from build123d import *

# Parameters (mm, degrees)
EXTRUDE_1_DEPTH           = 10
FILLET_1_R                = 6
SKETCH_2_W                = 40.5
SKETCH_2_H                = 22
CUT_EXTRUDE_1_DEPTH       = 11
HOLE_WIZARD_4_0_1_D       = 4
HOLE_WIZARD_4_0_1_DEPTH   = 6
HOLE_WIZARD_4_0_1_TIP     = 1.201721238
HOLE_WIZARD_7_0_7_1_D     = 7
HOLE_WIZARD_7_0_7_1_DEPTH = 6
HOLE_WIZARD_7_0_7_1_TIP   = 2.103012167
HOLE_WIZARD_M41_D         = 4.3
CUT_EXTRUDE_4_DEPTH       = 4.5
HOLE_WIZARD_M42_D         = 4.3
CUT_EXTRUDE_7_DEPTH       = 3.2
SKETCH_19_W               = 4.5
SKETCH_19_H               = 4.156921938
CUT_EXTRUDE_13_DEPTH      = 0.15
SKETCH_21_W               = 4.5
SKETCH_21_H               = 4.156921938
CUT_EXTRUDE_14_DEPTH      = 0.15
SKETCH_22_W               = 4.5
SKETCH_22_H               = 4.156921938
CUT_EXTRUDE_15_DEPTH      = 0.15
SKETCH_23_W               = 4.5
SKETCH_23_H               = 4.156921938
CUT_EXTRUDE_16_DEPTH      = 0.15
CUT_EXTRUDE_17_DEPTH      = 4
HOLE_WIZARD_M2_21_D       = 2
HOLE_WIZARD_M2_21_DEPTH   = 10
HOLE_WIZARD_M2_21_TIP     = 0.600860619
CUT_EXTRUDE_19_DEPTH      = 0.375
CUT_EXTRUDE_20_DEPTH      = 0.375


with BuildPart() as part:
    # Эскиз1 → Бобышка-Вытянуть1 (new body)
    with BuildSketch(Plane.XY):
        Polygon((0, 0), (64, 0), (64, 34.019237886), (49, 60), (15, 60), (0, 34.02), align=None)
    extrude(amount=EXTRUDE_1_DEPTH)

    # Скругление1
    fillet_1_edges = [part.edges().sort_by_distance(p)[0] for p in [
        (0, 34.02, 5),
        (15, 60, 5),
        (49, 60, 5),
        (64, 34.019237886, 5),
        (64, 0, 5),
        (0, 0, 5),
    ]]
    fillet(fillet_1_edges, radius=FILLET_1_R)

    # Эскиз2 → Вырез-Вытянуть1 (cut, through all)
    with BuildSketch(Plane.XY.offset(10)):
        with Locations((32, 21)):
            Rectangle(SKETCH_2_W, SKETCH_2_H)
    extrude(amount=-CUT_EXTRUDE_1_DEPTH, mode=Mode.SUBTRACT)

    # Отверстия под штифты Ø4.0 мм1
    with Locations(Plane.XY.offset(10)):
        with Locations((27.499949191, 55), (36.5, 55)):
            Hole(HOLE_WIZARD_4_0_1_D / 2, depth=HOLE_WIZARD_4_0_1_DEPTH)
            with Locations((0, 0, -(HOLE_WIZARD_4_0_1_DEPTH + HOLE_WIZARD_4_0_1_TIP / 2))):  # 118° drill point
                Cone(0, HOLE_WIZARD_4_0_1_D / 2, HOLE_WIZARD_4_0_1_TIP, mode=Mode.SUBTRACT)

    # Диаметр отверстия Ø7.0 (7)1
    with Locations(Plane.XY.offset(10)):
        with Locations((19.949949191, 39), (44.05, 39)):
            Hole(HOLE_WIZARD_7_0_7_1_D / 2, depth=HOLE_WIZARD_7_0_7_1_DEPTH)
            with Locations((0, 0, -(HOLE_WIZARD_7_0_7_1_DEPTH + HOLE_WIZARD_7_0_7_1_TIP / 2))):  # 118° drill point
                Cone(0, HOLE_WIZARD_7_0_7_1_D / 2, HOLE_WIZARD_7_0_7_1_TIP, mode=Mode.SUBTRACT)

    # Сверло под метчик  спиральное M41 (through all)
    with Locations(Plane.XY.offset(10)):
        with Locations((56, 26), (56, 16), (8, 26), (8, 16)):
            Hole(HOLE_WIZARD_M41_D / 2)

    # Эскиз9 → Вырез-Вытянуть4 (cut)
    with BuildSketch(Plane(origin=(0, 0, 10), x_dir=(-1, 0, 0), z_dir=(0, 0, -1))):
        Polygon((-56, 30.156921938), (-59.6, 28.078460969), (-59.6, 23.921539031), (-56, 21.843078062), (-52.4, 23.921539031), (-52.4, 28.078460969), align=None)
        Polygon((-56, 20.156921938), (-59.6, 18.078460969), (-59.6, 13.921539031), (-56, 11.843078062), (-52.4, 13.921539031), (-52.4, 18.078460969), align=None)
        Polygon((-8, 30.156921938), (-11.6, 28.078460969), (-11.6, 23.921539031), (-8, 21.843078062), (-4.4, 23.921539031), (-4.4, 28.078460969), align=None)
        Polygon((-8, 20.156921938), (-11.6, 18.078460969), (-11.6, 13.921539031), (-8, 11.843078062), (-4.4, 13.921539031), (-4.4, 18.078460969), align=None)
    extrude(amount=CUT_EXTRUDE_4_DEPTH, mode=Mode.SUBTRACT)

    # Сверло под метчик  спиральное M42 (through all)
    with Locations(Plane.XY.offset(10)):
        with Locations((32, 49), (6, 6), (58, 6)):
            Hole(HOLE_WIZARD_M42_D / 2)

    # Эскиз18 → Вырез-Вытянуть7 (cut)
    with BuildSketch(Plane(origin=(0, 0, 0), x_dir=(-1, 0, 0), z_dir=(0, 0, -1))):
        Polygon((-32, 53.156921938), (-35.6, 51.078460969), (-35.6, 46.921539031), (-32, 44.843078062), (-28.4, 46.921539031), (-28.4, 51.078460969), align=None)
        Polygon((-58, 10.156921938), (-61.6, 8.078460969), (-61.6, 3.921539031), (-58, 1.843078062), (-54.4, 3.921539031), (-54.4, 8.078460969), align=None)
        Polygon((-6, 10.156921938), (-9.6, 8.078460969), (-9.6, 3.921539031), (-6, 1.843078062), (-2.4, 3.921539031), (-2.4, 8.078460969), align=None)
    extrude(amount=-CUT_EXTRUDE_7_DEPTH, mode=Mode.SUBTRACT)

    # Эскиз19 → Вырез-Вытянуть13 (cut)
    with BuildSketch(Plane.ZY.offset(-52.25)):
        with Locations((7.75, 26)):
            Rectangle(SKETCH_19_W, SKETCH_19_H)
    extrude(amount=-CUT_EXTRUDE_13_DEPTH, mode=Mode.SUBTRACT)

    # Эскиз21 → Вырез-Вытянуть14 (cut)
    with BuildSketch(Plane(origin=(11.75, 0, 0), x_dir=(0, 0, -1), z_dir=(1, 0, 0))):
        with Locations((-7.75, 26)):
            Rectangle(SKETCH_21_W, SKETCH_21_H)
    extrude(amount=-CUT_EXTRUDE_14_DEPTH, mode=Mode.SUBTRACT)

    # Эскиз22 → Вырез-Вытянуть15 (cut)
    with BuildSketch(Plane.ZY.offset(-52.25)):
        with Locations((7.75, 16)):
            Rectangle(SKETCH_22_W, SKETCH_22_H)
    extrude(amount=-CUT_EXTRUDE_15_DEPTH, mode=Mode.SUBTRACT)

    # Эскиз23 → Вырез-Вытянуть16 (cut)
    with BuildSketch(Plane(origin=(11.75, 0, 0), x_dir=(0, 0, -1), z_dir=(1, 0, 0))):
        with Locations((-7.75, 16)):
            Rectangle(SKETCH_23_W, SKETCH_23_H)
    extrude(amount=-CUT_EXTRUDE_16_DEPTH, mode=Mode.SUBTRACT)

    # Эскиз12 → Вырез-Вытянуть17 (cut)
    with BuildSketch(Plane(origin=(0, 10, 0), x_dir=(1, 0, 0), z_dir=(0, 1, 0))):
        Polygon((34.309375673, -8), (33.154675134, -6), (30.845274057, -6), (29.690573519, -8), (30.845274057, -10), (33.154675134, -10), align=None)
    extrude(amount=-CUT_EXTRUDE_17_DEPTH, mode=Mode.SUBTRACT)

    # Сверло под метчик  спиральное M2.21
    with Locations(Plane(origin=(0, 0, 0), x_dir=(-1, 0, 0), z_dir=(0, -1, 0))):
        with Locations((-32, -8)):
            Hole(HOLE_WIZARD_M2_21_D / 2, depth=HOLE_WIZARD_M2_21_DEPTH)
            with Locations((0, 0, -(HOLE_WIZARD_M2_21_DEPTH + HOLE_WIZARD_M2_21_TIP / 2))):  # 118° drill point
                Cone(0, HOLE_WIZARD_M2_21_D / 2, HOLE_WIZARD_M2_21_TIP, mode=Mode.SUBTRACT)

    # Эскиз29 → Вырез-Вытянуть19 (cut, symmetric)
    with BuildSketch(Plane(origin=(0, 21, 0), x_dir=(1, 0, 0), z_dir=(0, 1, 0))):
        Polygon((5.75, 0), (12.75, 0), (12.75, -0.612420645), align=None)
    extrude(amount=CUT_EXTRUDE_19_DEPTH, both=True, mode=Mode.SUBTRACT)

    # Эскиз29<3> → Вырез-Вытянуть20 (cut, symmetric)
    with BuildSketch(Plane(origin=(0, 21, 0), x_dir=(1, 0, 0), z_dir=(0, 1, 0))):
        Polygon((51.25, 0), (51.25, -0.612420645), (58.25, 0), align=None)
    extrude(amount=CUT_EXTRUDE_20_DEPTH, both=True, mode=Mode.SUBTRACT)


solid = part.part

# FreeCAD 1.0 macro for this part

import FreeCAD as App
import Part
import Sketcher
from FreeCAD import Vector
Q = App.Units.Quantity


def edges_at(feature, points):
    """Names of the edges that pass closest to the given points."""
    edges = feature.Shape.Edges
    near = lambda p: min(range(len(edges)), key=lambda i: edges[i].distToShape(Part.Vertex(*p))[0])
    return sorted({f"Edge{near(p) + 1}" for p in points})


def add_polygon(sketch, points):
    """Adds a closed chain of lines whose ends are joined by coincident constraints."""
    first, n = sketch.GeometryCount, len(points)
    for a, b in zip(points, points[1:] + points[:1]):
        sketch.addGeometry(Part.LineSegment(App.Vector(*a, 0), App.Vector(*b, 0)), False)
    for i in range(n):
        sketch.addConstraint(Sketcher.Constraint("Coincident", first + i, 2, first + (i + 1) % n, 1))

doc = App.newDocument("Part")
params = doc.addObject("Spreadsheet::Sheet", "Params")
for row, (alias, value) in enumerate([
    ("sketch1_width", "64 mm"),
    ("sketch1_width2", "34 mm"),
    ("sketch1_length", "30 mm"),
    ("sketch1_height", "34.02 mm"),
    ("pad1_length", "10 mm"),
    ("fillet_radius", "6 mm"),
    ("sketch2_height", "22 mm"),
    ("sketch2_width", "40.5 mm"),
    ("sketch3_diameter", "4 mm"),
    ("hole_diameter", "4 mm"),
    ("hole_depth", "6 mm"),
    ("sketch4_diameter", "7 mm"),
    ("hole2_diameter", "7 mm"),
    ("hole2_depth", "6 mm"),
    ("sketch5_diameter", "4.3 mm"),
    ("hole3_diameter", "4.3 mm"),
    ("pocket2_length", "4.5 mm"),
    ("sketch7_diameter", "4.3 mm"),
    ("hole4_diameter", "4.3 mm"),
    ("pocket3_length", "3.2 mm"),
    ("sketch9_height", "4.5 mm"),
    ("pocket4_length", "0.15 mm"),
    ("sketch10_height", "4.5 mm"),
    ("pocket5_length", "0.15 mm"),
    ("sketch11_height", "4.5 mm"),
    ("pocket6_length", "0.15 mm"),
    ("sketch12_height", "4.5 mm"),
    ("pocket7_length", "0.15 mm"),
    ("pocket8_length", "4 mm"),
    ("sketch14_diameter", "2 mm"),
    ("hole5_diameter", "2 mm"),
    ("hole5_depth", "10 mm"),
    ("sketch15_width", "7 mm"),
    ("pocket9_length", "0.75 mm"),
    ("sketch16_width", "7 mm"),
    ("pocket10_length", "0.75 mm"),
], start=1):
    params.set(f"A{row}", alias)
    params.set(f"B{row}", "=" + value)
    params.setAlias(f"B{row}", alias)

body = doc.addObject("PartDesign::Body", "Body")

# Sketch on XY plane
sketch1 = body.newObject("Sketcher::SketchObject", "Sketch")
sketch1.AttachmentSupport = (doc.getObject("XY_Plane"), [""])
sketch1.MapMode = "FlatFace"
add_polygon(sketch1, [(0, 0), (64, 0), (64, 34.019238), (49, 60), (15, 60), (0, 34.02)])  # lines 0-5
sketch1.addConstraint([
    Sketcher.Constraint("Horizontal", 0),
    Sketcher.Constraint("Vertical", 1),
    Sketcher.Constraint("Horizontal", 3),
    Sketcher.Constraint("Vertical", 5),
    Sketcher.Constraint("Coincident", 5, 2, -1, 1),
    Sketcher.Constraint("DistanceX", 0, 1, 0, 2, Q("64 mm")),
    Sketcher.Constraint("DistanceX", 3, 2, 3, 1, Q("34 mm")),
    Sketcher.Constraint("Angle", 2, Q("120 deg")),
    Sketcher.Constraint("Distance", 2, Q("30 mm")),
    Sketcher.Constraint("DistanceY", -1, 1, 2, 2, Q("60 mm")),
    Sketcher.Constraint("DistanceY", 5, 2, 5, 1, Q("34.02 mm")),
])
sketch1.setExpression("Constraints[11]", "Params.sketch1_width")
sketch1.setExpression("Constraints[12]", "Params.sketch1_width2")
sketch1.setExpression("Constraints[14]", "Params.sketch1_length")
sketch1.setExpression("Constraints[16]", "Params.sketch1_height")
pad1 = body.newObject("PartDesign::Pad", "Pad")
pad1.Profile = sketch1
pad1.setExpression("Length", "Params.pad1_length")
doc.recompute()

fillet = body.newObject("PartDesign::Fillet", "Fillet")
fillet.Base = (pad1, edges_at(pad1, [
    (0, 34.02, 5),
    (15, 60, 5),
    (49, 60, 5),
    (64, 34.019, 5),
    (64, 0, 5),
    (0, 0, 5),
]))
fillet.setExpression("Radius", "Params.fillet_radius")

# Sketch on XY plane
sketch2 = body.newObject("Sketcher::SketchObject", "Sketch001")
sketch2.AttachmentSupport = (doc.getObject("XY_Plane"), [""])
sketch2.MapMode = "FlatFace"
sketch2.AttachmentOffset = App.Placement(Vector(0, 0, 10), App.Rotation())
add_polygon(sketch2, [(11.75, 32), (11.75, 10), (52.25, 10), (52.25, 32)])  # lines 0-3
sketch2.addConstraint([
    Sketcher.Constraint("Vertical", 0),
    Sketcher.Constraint("Horizontal", 1),
    Sketcher.Constraint("Vertical", 2),
    Sketcher.Constraint("Horizontal", 3),
    Sketcher.Constraint("DistanceY", 0, 2, 0, 1, Q("22 mm")),
    Sketcher.Constraint("DistanceX", 1, 1, 1, 2, Q("40.5 mm")),
    Sketcher.Constraint("DistanceY", -1, 1, 0, 2, Q("10 mm")),
    Sketcher.Constraint("DistanceX", -1, 1, 0, 2, Q("11.75 mm")),
])
sketch2.setExpression("Constraints[8]", "Params.sketch2_height")
sketch2.setExpression("Constraints[9]", "Params.sketch2_width")
pocket1 = body.newObject("PartDesign::Pocket", "Pocket")
pocket1.Profile = sketch2
pocket1.Type = "ThroughAll"

# Sketch on XY plane
sketch3 = body.newObject("Sketcher::SketchObject", "Sketch002")
sketch3.AttachmentSupport = (doc.getObject("XY_Plane"), [""])
sketch3.MapMode = "FlatFace"
sketch3.AttachmentOffset = App.Placement(Vector(0, 0, 10), App.Rotation())
sketch3.addGeometry([
    Part.Circle(Vector(27.499949, 55, 0), Vector(0, 0, 1), 2),
    Part.Circle(Vector(36.5, 55, 0), Vector(0, 0, 1), 2),
], False)
sketch3.addConstraint([
    Sketcher.Constraint("Equal", 0, 1),
    Sketcher.Constraint("Horizontal", 0, 3, 1, 3),
    Sketcher.Constraint("Diameter", 0, Q("4 mm")),
    Sketcher.Constraint("DistanceY", -1, 1, 0, 3, Q("55 mm")),
    Sketcher.Constraint("DistanceX", -1, 1, 1, 3, Q("36.5 mm")),
    Sketcher.Constraint("DistanceX", -1, 1, 0, 3, Q("27.499949 mm")),
])
sketch3.setExpression("Constraints[2]", "Params.sketch3_diameter")
doc.recompute()
hole = body.newObject("PartDesign::Hole", "Hole")
hole.Profile = sketch3
hole.ThreadType = "None"
hole.setExpression("Diameter", "Params.hole_diameter")
hole.DepthType = "Dimension"
hole.setExpression("Depth", "Params.hole_depth")
hole.DrillPoint = "Angled"
hole.DrillPointAngle = 118

# Sketch on XY plane
sketch4 = body.newObject("Sketcher::SketchObject", "Sketch003")
sketch4.AttachmentSupport = (doc.getObject("XY_Plane"), [""])
sketch4.MapMode = "FlatFace"
sketch4.AttachmentOffset = App.Placement(Vector(0, 0, 10), App.Rotation())
sketch4.addGeometry([
    Part.Circle(Vector(19.949949, 39, 0), Vector(0, 0, 1), 3.5),
    Part.Circle(Vector(44.05, 39, 0), Vector(0, 0, 1), 3.5),
], False)
sketch4.addConstraint([
    Sketcher.Constraint("Equal", 0, 1),
    Sketcher.Constraint("Horizontal", 0, 3, 1, 3),
    Sketcher.Constraint("Diameter", 0, Q("7 mm")),
    Sketcher.Constraint("DistanceY", -1, 1, 0, 3, Q("39 mm")),
    Sketcher.Constraint("DistanceX", -1, 1, 1, 3, Q("44.05 mm")),
    Sketcher.Constraint("DistanceX", -1, 1, 0, 3, Q("19.949949 mm")),
])
sketch4.setExpression("Constraints[2]", "Params.sketch4_diameter")
doc.recompute()
hole2 = body.newObject("PartDesign::Hole", "Hole001")
hole2.Profile = sketch4
hole2.ThreadType = "None"
hole2.setExpression("Diameter", "Params.hole2_diameter")
hole2.DepthType = "Dimension"
hole2.setExpression("Depth", "Params.hole2_depth")
hole2.DrillPoint = "Angled"
hole2.DrillPointAngle = 118

# Sketch on XY plane
sketch5 = body.newObject("Sketcher::SketchObject", "Sketch004")
sketch5.AttachmentSupport = (doc.getObject("XY_Plane"), [""])
sketch5.MapMode = "FlatFace"
sketch5.AttachmentOffset = App.Placement(Vector(0, 0, 10), App.Rotation())
sketch5.addGeometry([
    Part.Circle(Vector(56, 26, 0), Vector(0, 0, 1), 2.15),
    Part.Circle(Vector(56, 16, 0), Vector(0, 0, 1), 2.15),
    Part.Circle(Vector(8, 26, 0), Vector(0, 0, 1), 2.15),
    Part.Circle(Vector(8, 16, 0), Vector(0, 0, 1), 2.15),
], False)
sketch5.addConstraint([
    Sketcher.Constraint("Equal", 0, 1),
    Sketcher.Constraint("Equal", 1, 2),
    Sketcher.Constraint("Equal", 2, 3),
    Sketcher.Constraint("Horizontal", 0, 3, 2, 3),
    Sketcher.Constraint("Horizontal", 1, 3, 3, 3),
    Sketcher.Constraint("Vertical", 0, 3, 1, 3),
    Sketcher.Constraint("Vertical", 2, 3, 3, 3),
    Sketcher.Constraint("Diameter", 0, Q("4.3 mm")),
    Sketcher.Constraint("DistanceX", -1, 1, 0, 3, Q("56 mm")),
    Sketcher.Constraint("DistanceY", -1, 1, 0, 3, Q("26 mm")),
    Sketcher.Constraint("DistanceY", -1, 1, 1, 3, Q("16 mm")),
    Sketcher.Constraint("DistanceX", -1, 1, 2, 3, Q("8 mm")),
])
sketch5.setExpression("Constraints[7]", "Params.sketch5_diameter")
doc.recompute()
hole3 = body.newObject("PartDesign::Hole", "Hole002")
hole3.Profile = sketch5
hole3.ThreadType = "None"
hole3.setExpression("Diameter", "Params.hole3_diameter")
hole3.DepthType = "ThroughAll"

# Sketch on XY plane
sketch6 = body.newObject("Sketcher::SketchObject", "Sketch005")
sketch6.AttachmentSupport = (doc.getObject("XY_Plane"), [""])
sketch6.MapMode = "FlatFace"
sketch6.AttachmentOffset = App.Placement(Vector(0, 0, 10), App.Rotation())
add_polygon(sketch6, [(56, 30.156922), (59.6, 28.078461), (59.6, 23.921539), (56, 21.843078), (52.4, 23.921539), (52.4, 28.078461)])  # lines 0-5
add_polygon(sketch6, [(56, 20.156922), (59.6, 18.078461), (59.6, 13.921539), (56, 11.843078), (52.4, 13.921539), (52.4, 18.078461)])  # lines 6-11
add_polygon(sketch6, [(8, 30.156922), (11.6, 28.078461), (11.6, 23.921539), (8, 21.843078), (4.4, 23.921539), (4.4, 28.078461)])  # lines 12-17
add_polygon(sketch6, [(8, 20.156922), (11.6, 18.078461), (11.6, 13.921539), (8, 11.843078), (4.4, 13.921539), (4.4, 18.078461)])  # lines 18-23
sketch6.addConstraint([
    Sketcher.Constraint("Vertical", 1),
    Sketcher.Constraint("Vertical", 4),
    Sketcher.Constraint("Vertical", 7),
    Sketcher.Constraint("Vertical", 10),
    Sketcher.Constraint("Vertical", 13),
    Sketcher.Constraint("Vertical", 16),
    Sketcher.Constraint("Vertical", 19),
    Sketcher.Constraint("Vertical", 22),
    Sketcher.Constraint("Parallel", 0, 3),
    Sketcher.Constraint("Parallel", 2, 5),
    Sketcher.Constraint("Parallel", 3, 6),
    Sketcher.Constraint("Parallel", 5, 8),
    Sketcher.Constraint("Parallel", 6, 9),
    Sketcher.Constraint("Parallel", 8, 11),
    Sketcher.Constraint("Parallel", 9, 12),
    Sketcher.Constraint("Parallel", 11, 14),
    Sketcher.Constraint("Parallel", 12, 15),
    Sketcher.Constraint("Parallel", 14, 17),
    Sketcher.Constraint("Parallel", 15, 18),
    Sketcher.Constraint("Parallel", 17, 20),
    Sketcher.Constraint("Parallel", 18, 21),
    Sketcher.Constraint("Parallel", 20, 23),
    Sketcher.Constraint("Horizontal", 1, 2, 3, 2),
    Sketcher.Constraint("Horizontal", 0, 2, 4, 2),
    Sketcher.Constraint("Horizontal", 7, 2, 9, 2),
    Sketcher.Constraint("Horizontal", 6, 2, 10, 2),
    Sketcher.Constraint("Horizontal", 4, 2, 12, 2),
    Sketcher.Constraint("Horizontal", 3, 2, 13, 2),
    Sketcher.Constraint("Horizontal", 2, 2, 14, 2),
    Sketcher.Constraint("Horizontal", 13, 2, 15, 2),
    Sketcher.Constraint("Horizontal", 12, 2, 16, 2),
    Sketcher.Constraint("Horizontal", 10, 2, 18, 2),
    Sketcher.Constraint("Horizontal", 9, 2, 19, 2),
    Sketcher.Constraint("Horizontal", 8, 2, 20, 2),
    Sketcher.Constraint("Horizontal", 19, 2, 21, 2),
    Sketcher.Constraint("Horizontal", 18, 2, 22, 2),
    Sketcher.Constraint("Vertical", 2, 2, 5, 2),
    Sketcher.Constraint("Vertical", 1, 2, 6, 2),
    Sketcher.Constraint("Vertical", 5, 2, 8, 2),
    Sketcher.Constraint("Vertical", 13, 2, 18, 2),
    Sketcher.Constraint("Equal", 4, 7),
    Sketcher.Constraint("Angle", 0, Q("-30 deg")),
    Sketcher.Constraint("DistanceX", -1, 1, 2, 2, Q("56 mm")),
    Sketcher.Constraint("DistanceX", -1, 1, 14, 2, Q("8 mm")),
    Sketcher.Constraint("DistanceY", 6, 2, 0, 2, Q("10 mm")),
    Sketcher.Constraint("DistanceX", -1, 1, 0, 2, Q("59.6 mm")),
    Sketcher.Constraint("DistanceY", 1, 2, 1, 1, Q("4.156922 mm")),
    Sketcher.Constraint("DistanceY", -1, 1, 0, 2, Q("28.078461 mm")),
])
pocket2 = body.newObject("PartDesign::Pocket", "Pocket001")
pocket2.Profile = sketch6
pocket2.setExpression("Length", "Params.pocket2_length")

# Sketch on XY plane
sketch7 = body.newObject("Sketcher::SketchObject", "Sketch006")
sketch7.AttachmentSupport = (doc.getObject("XY_Plane"), [""])
sketch7.MapMode = "FlatFace"
sketch7.AttachmentOffset = App.Placement(Vector(0, 0, 10), App.Rotation())
sketch7.addGeometry([
    Part.Circle(Vector(32, 49, 0), Vector(0, 0, 1), 2.15),
    Part.Circle(Vector(6, 6, 0), Vector(0, 0, 1), 2.15),
    Part.Circle(Vector(58, 6, 0), Vector(0, 0, 1), 2.15),
], False)
sketch7.addConstraint([
    Sketcher.Constraint("Equal", 0, 1),
    Sketcher.Constraint("Equal", 1, 2),
    Sketcher.Constraint("Horizontal", 1, 3, 2, 3),
    Sketcher.Constraint("Diameter", 0, Q("4.3 mm")),
    Sketcher.Constraint("DistanceX", -1, 1, 0, 3, Q("32 mm")),
    Sketcher.Constraint("DistanceY", -1, 1, 0, 3, Q("49 mm")),
    Sketcher.Constraint("DistanceX", -1, 1, 1, 3, Q("6 mm")),
    Sketcher.Constraint("DistanceY", -1, 1, 1, 3, Q("6 mm")),
    Sketcher.Constraint("DistanceX", -1, 1, 2, 3, Q("58 mm")),
])
sketch7.setExpression("Constraints[3]", "Params.sketch7_diameter")
doc.recompute()
hole4 = body.newObject("PartDesign::Hole", "Hole003")
hole4.Profile = sketch7
hole4.ThreadType = "None"
hole4.setExpression("Diameter", "Params.hole4_diameter")
hole4.DepthType = "ThroughAll"

# Sketch on XY plane
sketch8 = body.newObject("Sketcher::SketchObject", "Sketch007")
sketch8.AttachmentSupport = (doc.getObject("XY_Plane"), [""])
sketch8.MapMode = "FlatFace"
add_polygon(sketch8, [(32, 53.156922), (35.6, 51.078461), (35.6, 46.921539), (32, 44.843078), (28.4, 46.921539), (28.4, 51.078461)])  # lines 0-5
add_polygon(sketch8, [(58, 10.156922), (61.6, 8.078461), (61.6, 3.921539), (58, 1.843078), (54.4, 3.921539), (54.4, 8.078461)])  # lines 6-11
add_polygon(sketch8, [(6, 10.156922), (9.6, 8.078461), (9.6, 3.921539), (6, 1.843078), (2.4, 3.921539), (2.4, 8.078461)])  # lines 12-17
sketch8.addConstraint([
    Sketcher.Constraint("Vertical", 1),
    Sketcher.Constraint("Vertical", 4),
    Sketcher.Constraint("Vertical", 7),
    Sketcher.Constraint("Vertical", 10),
    Sketcher.Constraint("Vertical", 13),
    Sketcher.Constraint("Vertical", 16),
    Sketcher.Constraint("Parallel", 0, 3),
    Sketcher.Constraint("Parallel", 2, 5),
    Sketcher.Constraint("Parallel", 3, 6),
    Sketcher.Constraint("Parallel", 5, 8),
    Sketcher.Constraint("Parallel", 6, 9),
    Sketcher.Constraint("Parallel", 8, 11),
    Sketcher.Constraint("Parallel", 9, 12),
    Sketcher.Constraint("Parallel", 11, 14),
    Sketcher.Constraint("Parallel", 12, 15),
    Sketcher.Constraint("Parallel", 14, 17),
    Sketcher.Constraint("Horizontal", 1, 2, 3, 2),
    Sketcher.Constraint("Horizontal", 0, 2, 4, 2),
    Sketcher.Constraint("Horizontal", 7, 2, 9, 2),
    Sketcher.Constraint("Horizontal", 6, 2, 10, 2),
    Sketcher.Constraint("Horizontal", 10, 2, 12, 2),
    Sketcher.Constraint("Horizontal", 9, 2, 13, 2),
    Sketcher.Constraint("Horizontal", 8, 2, 14, 2),
    Sketcher.Constraint("Horizontal", 13, 2, 15, 2),
    Sketcher.Constraint("Horizontal", 12, 2, 16, 2),
    Sketcher.Constraint("Vertical", 2, 2, 5, 2),
    Sketcher.Constraint("Equal", 4, 7),
    Sketcher.Constraint("Equal", 5, 6),
    Sketcher.Constraint("Angle", 0, Q("-30 deg")),
    Sketcher.Constraint("DistanceX", -1, 1, 2, 2, Q("32 mm")),
    Sketcher.Constraint("DistanceX", -1, 1, 8, 2, Q("58 mm")),
    Sketcher.Constraint("DistanceX", -1, 1, 14, 2, Q("6 mm")),
    Sketcher.Constraint("DistanceY", 6, 2, 0, 2, Q("43 mm")),
    Sketcher.Constraint("DistanceX", -1, 1, 0, 2, Q("35.6 mm")),
    Sketcher.Constraint("DistanceY", 1, 2, 1, 1, Q("4.156922 mm")),
    Sketcher.Constraint("DistanceY", -1, 1, 0, 2, Q("51.078461 mm")),
])
pocket3 = body.newObject("PartDesign::Pocket", "Pocket002")
pocket3.Profile = sketch8
pocket3.setExpression("Length", "Params.pocket3_length")
pocket3.Reversed = True

# Sketch on YZ plane
sketch9 = body.newObject("Sketcher::SketchObject", "Sketch008")
sketch9.AttachmentSupport = (doc.getObject("YZ_Plane"), [""])
sketch9.MapMode = "FlatFace"
sketch9.AttachmentOffset = App.Placement(Vector(0, 0, 52.25), App.Rotation())
add_polygon(sketch9, [(28.078461, 5.5), (23.921539, 5.5), (23.921539, 10), (28.078461, 10)])  # lines 0-3
sketch9.addConstraint([
    Sketcher.Constraint("Horizontal", 0),
    Sketcher.Constraint("Vertical", 1),
    Sketcher.Constraint("Horizontal", 2),
    Sketcher.Constraint("Vertical", 3),
    Sketcher.Constraint("DistanceY", 1, 1, 1, 2, Q("4.5 mm")),
    Sketcher.Constraint("DistanceY", -1, 1, 1, 2, Q("10 mm")),
    Sketcher.Constraint("DistanceX", 0, 2, 0, 1, Q("4.156922 mm")),
    Sketcher.Constraint("DistanceX", -1, 1, 0, 2, Q("23.921539 mm")),
])
sketch9.setExpression("Constraints[8]", "Params.sketch9_height")
pocket4 = body.newObject("PartDesign::Pocket", "Pocket003")
pocket4.Profile = sketch9
pocket4.setExpression("Length", "Params.pocket4_length")
pocket4.Reversed = True

# Sketch on YZ plane
sketch10 = body.newObject("Sketcher::SketchObject", "Sketch009")
sketch10.AttachmentSupport = (doc.getObject("YZ_Plane"), [""])
sketch10.MapMode = "FlatFace"
sketch10.AttachmentOffset = App.Placement(Vector(0, 0, 11.75), App.Rotation())
add_polygon(sketch10, [(28.078461, 10), (23.921539, 10), (23.921539, 5.5), (28.078461, 5.5)])  # lines 0-3
sketch10.addConstraint([
    Sketcher.Constraint("Horizontal", 0),
    Sketcher.Constraint("Vertical", 1),
    Sketcher.Constraint("Horizontal", 2),
    Sketcher.Constraint("Vertical", 3),
    Sketcher.Constraint("DistanceY", 1, 2, 1, 1, Q("4.5 mm")),
    Sketcher.Constraint("DistanceY", -1, 1, 0, 2, Q("10 mm")),
    Sketcher.Constraint("DistanceX", 0, 2, 0, 1, Q("4.156922 mm")),
    Sketcher.Constraint("DistanceX", -1, 1, 0, 2, Q("23.921539 mm")),
])
sketch10.setExpression("Constraints[8]", "Params.sketch10_height")
pocket5 = body.newObject("PartDesign::Pocket", "Pocket004")
pocket5.Profile = sketch10
pocket5.setExpression("Length", "Params.pocket5_length")

# Sketch on YZ plane
sketch11 = body.newObject("Sketcher::SketchObject", "Sketch010")
sketch11.AttachmentSupport = (doc.getObject("YZ_Plane"), [""])
sketch11.MapMode = "FlatFace"
sketch11.AttachmentOffset = App.Placement(Vector(0, 0, 52.25), App.Rotation())
add_polygon(sketch11, [(18.078461, 5.5), (13.921539, 5.5), (13.921539, 10), (18.078461, 10)])  # lines 0-3
sketch11.addConstraint([
    Sketcher.Constraint("Horizontal", 0),
    Sketcher.Constraint("Vertical", 1),
    Sketcher.Constraint("Horizontal", 2),
    Sketcher.Constraint("Vertical", 3),
    Sketcher.Constraint("DistanceY", 1, 1, 1, 2, Q("4.5 mm")),
    Sketcher.Constraint("DistanceY", -1, 1, 1, 2, Q("10 mm")),
    Sketcher.Constraint("DistanceX", 0, 2, 0, 1, Q("4.156922 mm")),
    Sketcher.Constraint("DistanceX", -1, 1, 0, 2, Q("13.921539 mm")),
])
sketch11.setExpression("Constraints[8]", "Params.sketch11_height")
pocket6 = body.newObject("PartDesign::Pocket", "Pocket005")
pocket6.Profile = sketch11
pocket6.setExpression("Length", "Params.pocket6_length")
pocket6.Reversed = True

# Sketch on YZ plane
sketch12 = body.newObject("Sketcher::SketchObject", "Sketch011")
sketch12.AttachmentSupport = (doc.getObject("YZ_Plane"), [""])
sketch12.MapMode = "FlatFace"
sketch12.AttachmentOffset = App.Placement(Vector(0, 0, 11.75), App.Rotation())
add_polygon(sketch12, [(18.078461, 10), (13.921539, 10), (13.921539, 5.5), (18.078461, 5.5)])  # lines 0-3
sketch12.addConstraint([
    Sketcher.Constraint("Horizontal", 0),
    Sketcher.Constraint("Vertical", 1),
    Sketcher.Constraint("Horizontal", 2),
    Sketcher.Constraint("Vertical", 3),
    Sketcher.Constraint("DistanceY", 1, 2, 1, 1, Q("4.5 mm")),
    Sketcher.Constraint("DistanceY", -1, 1, 0, 2, Q("10 mm")),
    Sketcher.Constraint("DistanceX", 0, 2, 0, 1, Q("4.156922 mm")),
    Sketcher.Constraint("DistanceX", -1, 1, 0, 2, Q("13.921539 mm")),
])
sketch12.setExpression("Constraints[8]", "Params.sketch12_height")
pocket7 = body.newObject("PartDesign::Pocket", "Pocket006")
pocket7.Profile = sketch12
pocket7.setExpression("Length", "Params.pocket7_length")

# Sketch on XZ plane
sketch13 = body.newObject("Sketcher::SketchObject", "Sketch012")
sketch13.AttachmentSupport = (doc.getObject("XZ_Plane"), [""])
sketch13.MapMode = "FlatFace"
sketch13.AttachmentOffset = App.Placement(Vector(0, 0, -10), App.Rotation())
add_polygon(sketch13, [(34.309376, 8), (33.154675, 6), (30.845274, 6), (29.690574, 8), (30.845274, 10), (33.154675, 10)])  # lines 0-5
sketch13.addConstraint([
    Sketcher.Constraint("Horizontal", 1),
    Sketcher.Constraint("Horizontal", 4),
    Sketcher.Constraint("Parallel", 0, 3),
    Sketcher.Constraint("Parallel", 2, 5),
    Sketcher.Constraint("Horizontal", 2, 2, 5, 2),
    Sketcher.Constraint("Vertical", 1, 2, 3, 2),
    Sketcher.Constraint("Vertical", 0, 2, 4, 2),
    Sketcher.Constraint("Angle", 0, Q("-120 deg")),
    Sketcher.Constraint("DistanceY", -1, 1, 0, 2, Q("6 mm")),
    Sketcher.Constraint("DistanceY", -1, 1, 2, 2, Q("8 mm")),
    Sketcher.Constraint("DistanceX", 1, 2, 1, 1, Q("2.309401 mm")),
    Sketcher.Constraint("DistanceX", -1, 1, 0, 2, Q("33.154675 mm")),
])
pocket8 = body.newObject("PartDesign::Pocket", "Pocket007")
pocket8.Profile = sketch13
pocket8.setExpression("Length", "Params.pocket8_length")
pocket8.Reversed = True

# Sketch on XZ plane
sketch14 = body.newObject("Sketcher::SketchObject", "Sketch013")
sketch14.AttachmentSupport = (doc.getObject("XZ_Plane"), [""])
sketch14.MapMode = "FlatFace"
sketch14.addGeometry(Part.Circle(Vector(32, 8, 0), Vector(0, 0, 1), 1), False)
sketch14.addConstraint([
    Sketcher.Constraint("Diameter", 0, Q("2 mm")),
    Sketcher.Constraint("DistanceX", -1, 1, 0, 3, Q("32 mm")),
    Sketcher.Constraint("DistanceY", -1, 1, 0, 3, Q("8 mm")),
])
sketch14.setExpression("Constraints[0]", "Params.sketch14_diameter")
doc.recompute()
hole5 = body.newObject("PartDesign::Hole", "Hole004")
hole5.Profile = sketch14
hole5.ThreadType = "None"
hole5.setExpression("Diameter", "Params.hole5_diameter")
hole5.DepthType = "Dimension"
hole5.setExpression("Depth", "Params.hole5_depth")
hole5.DrillPoint = "Angled"
hole5.DrillPointAngle = 118

# Sketch on XZ plane
sketch15 = body.newObject("Sketcher::SketchObject", "Sketch014")
sketch15.AttachmentSupport = (doc.getObject("XZ_Plane"), [""])
sketch15.MapMode = "FlatFace"
sketch15.AttachmentOffset = App.Placement(Vector(0, 0, -21), App.Rotation())
add_polygon(sketch15, [(12.75, 0), (5.75, 0), (12.75, 0.612421)])  # lines 0-2
sketch15.addConstraint([
    Sketcher.Constraint("Horizontal", 0),
    Sketcher.Constraint("Vertical", 2),
    Sketcher.Constraint("PointOnObject", 0, 2, -1),
    Sketcher.Constraint("DistanceX", 0, 2, 0, 1, Q("7 mm")),
    Sketcher.Constraint("Angle", 1, Q("5 deg")),
    Sketcher.Constraint("DistanceX", -1, 1, 0, 2, Q("5.75 mm")),
])
sketch15.setExpression("Constraints[6]", "Params.sketch15_width")
pocket9 = body.newObject("PartDesign::Pocket", "Pocket008")
pocket9.Profile = sketch15
pocket9.setExpression("Length", "Params.pocket9_length")
pocket9.Midplane = True

# Sketch on XZ plane
sketch16 = body.newObject("Sketcher::SketchObject", "Sketch015")
sketch16.AttachmentSupport = (doc.getObject("XZ_Plane"), [""])
sketch16.MapMode = "FlatFace"
sketch16.AttachmentOffset = App.Placement(Vector(0, 0, -21), App.Rotation())
add_polygon(sketch16, [(51.25, 0), (51.25, 0.612421), (58.25, 0)])  # lines 0-2
sketch16.addConstraint([
    Sketcher.Constraint("Vertical", 0),
    Sketcher.Constraint("Horizontal", 2),
    Sketcher.Constraint("PointOnObject", 1, 2, -1),
    Sketcher.Constraint("DistanceX", 2, 2, 2, 1, Q("7 mm")),
    Sketcher.Constraint("Angle", 1, Q("-5 deg")),
    Sketcher.Constraint("DistanceX", -1, 1, 0, 2, Q("51.25 mm")),
])
sketch16.setExpression("Constraints[6]", "Params.sketch16_width")
pocket10 = body.newObject("PartDesign::Pocket", "Pocket009")
pocket10.Profile = sketch16
pocket10.setExpression("Length", "Params.pocket10_length")
pocket10.Midplane = True

doc.recompute()
